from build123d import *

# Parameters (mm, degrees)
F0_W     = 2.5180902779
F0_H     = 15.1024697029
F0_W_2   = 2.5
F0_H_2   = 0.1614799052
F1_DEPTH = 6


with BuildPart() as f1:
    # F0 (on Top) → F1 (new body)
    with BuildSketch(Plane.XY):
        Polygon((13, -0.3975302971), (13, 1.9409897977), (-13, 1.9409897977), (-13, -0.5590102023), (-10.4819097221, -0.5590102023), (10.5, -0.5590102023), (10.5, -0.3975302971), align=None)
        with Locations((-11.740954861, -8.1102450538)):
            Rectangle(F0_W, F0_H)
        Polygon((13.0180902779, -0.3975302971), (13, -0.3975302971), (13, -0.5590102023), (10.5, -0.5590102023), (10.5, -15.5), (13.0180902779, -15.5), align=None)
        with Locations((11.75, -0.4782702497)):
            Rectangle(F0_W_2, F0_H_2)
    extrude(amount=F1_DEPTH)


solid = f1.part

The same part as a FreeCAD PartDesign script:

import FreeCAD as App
import Part
import Sketcher
from FreeCAD import Vector
Q = App.Units.Quantity


def add_polygon(sketch, points):
    """Adds a closed chain of lines whose ends are joined by coincident constraints."""
    first, n = sketch.GeometryCount, len(points)
    for a, b in zip(points, points[1:] + points[:1]):
        sketch.addGeometry(Part.LineSegment(App.Vector(*a, 0), App.Vector(*b, 0)), False)
    for i in range(n):
        sketch.addConstraint(Sketcher.Constraint("Coincident", first + i, 2, first + (i + 1) % n, 1))

doc = App.newDocument("Part")
body = doc.addObject("PartDesign::Body", "Body")

# Sketch on XY plane
sketch1 = body.newObject("Sketcher::SketchObject", "Sketch")
sketch1.AttachmentSupport = (doc.getObject("XY_Plane"), [""])
sketch1.MapMode = "FlatFace"
add_polygon(sketch1, [(13, -0.398), (13, 1.941), (-13, 1.941), (-13, -0.559), (-13, -15.661), (-10.482, -15.661), (-10.482, -0.559), (10.5, -0.559), (10.5, -15.5), (13.018, -15.5), (13.018, -0.398)])  # lines 0-10
sketch1.addConstraint([
    Sketcher.Constraint("Vertical", 0),
    Sketcher.Constraint("Horizontal", 1),
    Sketcher.Constraint("Vertical", 2),
    Sketcher.Constraint("Vertical", 3),
    Sketcher.Constraint("Horizontal", 4),
    Sketcher.Constraint("Vertical", 5),
    Sketcher.Constraint("Horizontal", 6),
    Sketcher.Constraint("Vertical", 7),
    Sketcher.Constraint("Horizontal", 8),
    Sketcher.Constraint("Vertical", 9),
    Sketcher.Constraint("Horizontal", 10),
    Sketcher.Constraint("Horizontal", 2, 2, 5, 2),
    Sketcher.Constraint("Equal", 4, 8),
    Sketcher.Constraint("Equal", 5, 9),
    Sketcher.Constraint("DistanceX", 1, 2, 1, 1, Q("26 mm")),
    Sketcher.Constraint("DistanceY", 2, 2, 2, 1, Q("2.5 mm")),
    Sketcher.Constraint("DistanceX", -1, 1, 0, 2, Q("13 mm")),
    Sketcher.Constraint("DistanceX", -1, 1, 6, 2, Q("10.5 mm")),
    Sketcher.Constraint("DistanceY", 7, 2, -1, 1, Q("15.5 mm")),
    Sketcher.Constraint("DistanceX", 4, 1, 4, 2, Q("2.51809 mm")),
    Sketcher.Constraint("DistanceY", 0, 1, 0, 2, Q("2.33852 mm")),
    Sketcher.Constraint("DistanceY", 3, 2, 3, 1, Q("15.10247 mm")),
])
pad1 = body.newObject("PartDesign::Pad", "Pad")
pad1.Profile = sketch1
pad1.Length = 6

doc.recompute()
